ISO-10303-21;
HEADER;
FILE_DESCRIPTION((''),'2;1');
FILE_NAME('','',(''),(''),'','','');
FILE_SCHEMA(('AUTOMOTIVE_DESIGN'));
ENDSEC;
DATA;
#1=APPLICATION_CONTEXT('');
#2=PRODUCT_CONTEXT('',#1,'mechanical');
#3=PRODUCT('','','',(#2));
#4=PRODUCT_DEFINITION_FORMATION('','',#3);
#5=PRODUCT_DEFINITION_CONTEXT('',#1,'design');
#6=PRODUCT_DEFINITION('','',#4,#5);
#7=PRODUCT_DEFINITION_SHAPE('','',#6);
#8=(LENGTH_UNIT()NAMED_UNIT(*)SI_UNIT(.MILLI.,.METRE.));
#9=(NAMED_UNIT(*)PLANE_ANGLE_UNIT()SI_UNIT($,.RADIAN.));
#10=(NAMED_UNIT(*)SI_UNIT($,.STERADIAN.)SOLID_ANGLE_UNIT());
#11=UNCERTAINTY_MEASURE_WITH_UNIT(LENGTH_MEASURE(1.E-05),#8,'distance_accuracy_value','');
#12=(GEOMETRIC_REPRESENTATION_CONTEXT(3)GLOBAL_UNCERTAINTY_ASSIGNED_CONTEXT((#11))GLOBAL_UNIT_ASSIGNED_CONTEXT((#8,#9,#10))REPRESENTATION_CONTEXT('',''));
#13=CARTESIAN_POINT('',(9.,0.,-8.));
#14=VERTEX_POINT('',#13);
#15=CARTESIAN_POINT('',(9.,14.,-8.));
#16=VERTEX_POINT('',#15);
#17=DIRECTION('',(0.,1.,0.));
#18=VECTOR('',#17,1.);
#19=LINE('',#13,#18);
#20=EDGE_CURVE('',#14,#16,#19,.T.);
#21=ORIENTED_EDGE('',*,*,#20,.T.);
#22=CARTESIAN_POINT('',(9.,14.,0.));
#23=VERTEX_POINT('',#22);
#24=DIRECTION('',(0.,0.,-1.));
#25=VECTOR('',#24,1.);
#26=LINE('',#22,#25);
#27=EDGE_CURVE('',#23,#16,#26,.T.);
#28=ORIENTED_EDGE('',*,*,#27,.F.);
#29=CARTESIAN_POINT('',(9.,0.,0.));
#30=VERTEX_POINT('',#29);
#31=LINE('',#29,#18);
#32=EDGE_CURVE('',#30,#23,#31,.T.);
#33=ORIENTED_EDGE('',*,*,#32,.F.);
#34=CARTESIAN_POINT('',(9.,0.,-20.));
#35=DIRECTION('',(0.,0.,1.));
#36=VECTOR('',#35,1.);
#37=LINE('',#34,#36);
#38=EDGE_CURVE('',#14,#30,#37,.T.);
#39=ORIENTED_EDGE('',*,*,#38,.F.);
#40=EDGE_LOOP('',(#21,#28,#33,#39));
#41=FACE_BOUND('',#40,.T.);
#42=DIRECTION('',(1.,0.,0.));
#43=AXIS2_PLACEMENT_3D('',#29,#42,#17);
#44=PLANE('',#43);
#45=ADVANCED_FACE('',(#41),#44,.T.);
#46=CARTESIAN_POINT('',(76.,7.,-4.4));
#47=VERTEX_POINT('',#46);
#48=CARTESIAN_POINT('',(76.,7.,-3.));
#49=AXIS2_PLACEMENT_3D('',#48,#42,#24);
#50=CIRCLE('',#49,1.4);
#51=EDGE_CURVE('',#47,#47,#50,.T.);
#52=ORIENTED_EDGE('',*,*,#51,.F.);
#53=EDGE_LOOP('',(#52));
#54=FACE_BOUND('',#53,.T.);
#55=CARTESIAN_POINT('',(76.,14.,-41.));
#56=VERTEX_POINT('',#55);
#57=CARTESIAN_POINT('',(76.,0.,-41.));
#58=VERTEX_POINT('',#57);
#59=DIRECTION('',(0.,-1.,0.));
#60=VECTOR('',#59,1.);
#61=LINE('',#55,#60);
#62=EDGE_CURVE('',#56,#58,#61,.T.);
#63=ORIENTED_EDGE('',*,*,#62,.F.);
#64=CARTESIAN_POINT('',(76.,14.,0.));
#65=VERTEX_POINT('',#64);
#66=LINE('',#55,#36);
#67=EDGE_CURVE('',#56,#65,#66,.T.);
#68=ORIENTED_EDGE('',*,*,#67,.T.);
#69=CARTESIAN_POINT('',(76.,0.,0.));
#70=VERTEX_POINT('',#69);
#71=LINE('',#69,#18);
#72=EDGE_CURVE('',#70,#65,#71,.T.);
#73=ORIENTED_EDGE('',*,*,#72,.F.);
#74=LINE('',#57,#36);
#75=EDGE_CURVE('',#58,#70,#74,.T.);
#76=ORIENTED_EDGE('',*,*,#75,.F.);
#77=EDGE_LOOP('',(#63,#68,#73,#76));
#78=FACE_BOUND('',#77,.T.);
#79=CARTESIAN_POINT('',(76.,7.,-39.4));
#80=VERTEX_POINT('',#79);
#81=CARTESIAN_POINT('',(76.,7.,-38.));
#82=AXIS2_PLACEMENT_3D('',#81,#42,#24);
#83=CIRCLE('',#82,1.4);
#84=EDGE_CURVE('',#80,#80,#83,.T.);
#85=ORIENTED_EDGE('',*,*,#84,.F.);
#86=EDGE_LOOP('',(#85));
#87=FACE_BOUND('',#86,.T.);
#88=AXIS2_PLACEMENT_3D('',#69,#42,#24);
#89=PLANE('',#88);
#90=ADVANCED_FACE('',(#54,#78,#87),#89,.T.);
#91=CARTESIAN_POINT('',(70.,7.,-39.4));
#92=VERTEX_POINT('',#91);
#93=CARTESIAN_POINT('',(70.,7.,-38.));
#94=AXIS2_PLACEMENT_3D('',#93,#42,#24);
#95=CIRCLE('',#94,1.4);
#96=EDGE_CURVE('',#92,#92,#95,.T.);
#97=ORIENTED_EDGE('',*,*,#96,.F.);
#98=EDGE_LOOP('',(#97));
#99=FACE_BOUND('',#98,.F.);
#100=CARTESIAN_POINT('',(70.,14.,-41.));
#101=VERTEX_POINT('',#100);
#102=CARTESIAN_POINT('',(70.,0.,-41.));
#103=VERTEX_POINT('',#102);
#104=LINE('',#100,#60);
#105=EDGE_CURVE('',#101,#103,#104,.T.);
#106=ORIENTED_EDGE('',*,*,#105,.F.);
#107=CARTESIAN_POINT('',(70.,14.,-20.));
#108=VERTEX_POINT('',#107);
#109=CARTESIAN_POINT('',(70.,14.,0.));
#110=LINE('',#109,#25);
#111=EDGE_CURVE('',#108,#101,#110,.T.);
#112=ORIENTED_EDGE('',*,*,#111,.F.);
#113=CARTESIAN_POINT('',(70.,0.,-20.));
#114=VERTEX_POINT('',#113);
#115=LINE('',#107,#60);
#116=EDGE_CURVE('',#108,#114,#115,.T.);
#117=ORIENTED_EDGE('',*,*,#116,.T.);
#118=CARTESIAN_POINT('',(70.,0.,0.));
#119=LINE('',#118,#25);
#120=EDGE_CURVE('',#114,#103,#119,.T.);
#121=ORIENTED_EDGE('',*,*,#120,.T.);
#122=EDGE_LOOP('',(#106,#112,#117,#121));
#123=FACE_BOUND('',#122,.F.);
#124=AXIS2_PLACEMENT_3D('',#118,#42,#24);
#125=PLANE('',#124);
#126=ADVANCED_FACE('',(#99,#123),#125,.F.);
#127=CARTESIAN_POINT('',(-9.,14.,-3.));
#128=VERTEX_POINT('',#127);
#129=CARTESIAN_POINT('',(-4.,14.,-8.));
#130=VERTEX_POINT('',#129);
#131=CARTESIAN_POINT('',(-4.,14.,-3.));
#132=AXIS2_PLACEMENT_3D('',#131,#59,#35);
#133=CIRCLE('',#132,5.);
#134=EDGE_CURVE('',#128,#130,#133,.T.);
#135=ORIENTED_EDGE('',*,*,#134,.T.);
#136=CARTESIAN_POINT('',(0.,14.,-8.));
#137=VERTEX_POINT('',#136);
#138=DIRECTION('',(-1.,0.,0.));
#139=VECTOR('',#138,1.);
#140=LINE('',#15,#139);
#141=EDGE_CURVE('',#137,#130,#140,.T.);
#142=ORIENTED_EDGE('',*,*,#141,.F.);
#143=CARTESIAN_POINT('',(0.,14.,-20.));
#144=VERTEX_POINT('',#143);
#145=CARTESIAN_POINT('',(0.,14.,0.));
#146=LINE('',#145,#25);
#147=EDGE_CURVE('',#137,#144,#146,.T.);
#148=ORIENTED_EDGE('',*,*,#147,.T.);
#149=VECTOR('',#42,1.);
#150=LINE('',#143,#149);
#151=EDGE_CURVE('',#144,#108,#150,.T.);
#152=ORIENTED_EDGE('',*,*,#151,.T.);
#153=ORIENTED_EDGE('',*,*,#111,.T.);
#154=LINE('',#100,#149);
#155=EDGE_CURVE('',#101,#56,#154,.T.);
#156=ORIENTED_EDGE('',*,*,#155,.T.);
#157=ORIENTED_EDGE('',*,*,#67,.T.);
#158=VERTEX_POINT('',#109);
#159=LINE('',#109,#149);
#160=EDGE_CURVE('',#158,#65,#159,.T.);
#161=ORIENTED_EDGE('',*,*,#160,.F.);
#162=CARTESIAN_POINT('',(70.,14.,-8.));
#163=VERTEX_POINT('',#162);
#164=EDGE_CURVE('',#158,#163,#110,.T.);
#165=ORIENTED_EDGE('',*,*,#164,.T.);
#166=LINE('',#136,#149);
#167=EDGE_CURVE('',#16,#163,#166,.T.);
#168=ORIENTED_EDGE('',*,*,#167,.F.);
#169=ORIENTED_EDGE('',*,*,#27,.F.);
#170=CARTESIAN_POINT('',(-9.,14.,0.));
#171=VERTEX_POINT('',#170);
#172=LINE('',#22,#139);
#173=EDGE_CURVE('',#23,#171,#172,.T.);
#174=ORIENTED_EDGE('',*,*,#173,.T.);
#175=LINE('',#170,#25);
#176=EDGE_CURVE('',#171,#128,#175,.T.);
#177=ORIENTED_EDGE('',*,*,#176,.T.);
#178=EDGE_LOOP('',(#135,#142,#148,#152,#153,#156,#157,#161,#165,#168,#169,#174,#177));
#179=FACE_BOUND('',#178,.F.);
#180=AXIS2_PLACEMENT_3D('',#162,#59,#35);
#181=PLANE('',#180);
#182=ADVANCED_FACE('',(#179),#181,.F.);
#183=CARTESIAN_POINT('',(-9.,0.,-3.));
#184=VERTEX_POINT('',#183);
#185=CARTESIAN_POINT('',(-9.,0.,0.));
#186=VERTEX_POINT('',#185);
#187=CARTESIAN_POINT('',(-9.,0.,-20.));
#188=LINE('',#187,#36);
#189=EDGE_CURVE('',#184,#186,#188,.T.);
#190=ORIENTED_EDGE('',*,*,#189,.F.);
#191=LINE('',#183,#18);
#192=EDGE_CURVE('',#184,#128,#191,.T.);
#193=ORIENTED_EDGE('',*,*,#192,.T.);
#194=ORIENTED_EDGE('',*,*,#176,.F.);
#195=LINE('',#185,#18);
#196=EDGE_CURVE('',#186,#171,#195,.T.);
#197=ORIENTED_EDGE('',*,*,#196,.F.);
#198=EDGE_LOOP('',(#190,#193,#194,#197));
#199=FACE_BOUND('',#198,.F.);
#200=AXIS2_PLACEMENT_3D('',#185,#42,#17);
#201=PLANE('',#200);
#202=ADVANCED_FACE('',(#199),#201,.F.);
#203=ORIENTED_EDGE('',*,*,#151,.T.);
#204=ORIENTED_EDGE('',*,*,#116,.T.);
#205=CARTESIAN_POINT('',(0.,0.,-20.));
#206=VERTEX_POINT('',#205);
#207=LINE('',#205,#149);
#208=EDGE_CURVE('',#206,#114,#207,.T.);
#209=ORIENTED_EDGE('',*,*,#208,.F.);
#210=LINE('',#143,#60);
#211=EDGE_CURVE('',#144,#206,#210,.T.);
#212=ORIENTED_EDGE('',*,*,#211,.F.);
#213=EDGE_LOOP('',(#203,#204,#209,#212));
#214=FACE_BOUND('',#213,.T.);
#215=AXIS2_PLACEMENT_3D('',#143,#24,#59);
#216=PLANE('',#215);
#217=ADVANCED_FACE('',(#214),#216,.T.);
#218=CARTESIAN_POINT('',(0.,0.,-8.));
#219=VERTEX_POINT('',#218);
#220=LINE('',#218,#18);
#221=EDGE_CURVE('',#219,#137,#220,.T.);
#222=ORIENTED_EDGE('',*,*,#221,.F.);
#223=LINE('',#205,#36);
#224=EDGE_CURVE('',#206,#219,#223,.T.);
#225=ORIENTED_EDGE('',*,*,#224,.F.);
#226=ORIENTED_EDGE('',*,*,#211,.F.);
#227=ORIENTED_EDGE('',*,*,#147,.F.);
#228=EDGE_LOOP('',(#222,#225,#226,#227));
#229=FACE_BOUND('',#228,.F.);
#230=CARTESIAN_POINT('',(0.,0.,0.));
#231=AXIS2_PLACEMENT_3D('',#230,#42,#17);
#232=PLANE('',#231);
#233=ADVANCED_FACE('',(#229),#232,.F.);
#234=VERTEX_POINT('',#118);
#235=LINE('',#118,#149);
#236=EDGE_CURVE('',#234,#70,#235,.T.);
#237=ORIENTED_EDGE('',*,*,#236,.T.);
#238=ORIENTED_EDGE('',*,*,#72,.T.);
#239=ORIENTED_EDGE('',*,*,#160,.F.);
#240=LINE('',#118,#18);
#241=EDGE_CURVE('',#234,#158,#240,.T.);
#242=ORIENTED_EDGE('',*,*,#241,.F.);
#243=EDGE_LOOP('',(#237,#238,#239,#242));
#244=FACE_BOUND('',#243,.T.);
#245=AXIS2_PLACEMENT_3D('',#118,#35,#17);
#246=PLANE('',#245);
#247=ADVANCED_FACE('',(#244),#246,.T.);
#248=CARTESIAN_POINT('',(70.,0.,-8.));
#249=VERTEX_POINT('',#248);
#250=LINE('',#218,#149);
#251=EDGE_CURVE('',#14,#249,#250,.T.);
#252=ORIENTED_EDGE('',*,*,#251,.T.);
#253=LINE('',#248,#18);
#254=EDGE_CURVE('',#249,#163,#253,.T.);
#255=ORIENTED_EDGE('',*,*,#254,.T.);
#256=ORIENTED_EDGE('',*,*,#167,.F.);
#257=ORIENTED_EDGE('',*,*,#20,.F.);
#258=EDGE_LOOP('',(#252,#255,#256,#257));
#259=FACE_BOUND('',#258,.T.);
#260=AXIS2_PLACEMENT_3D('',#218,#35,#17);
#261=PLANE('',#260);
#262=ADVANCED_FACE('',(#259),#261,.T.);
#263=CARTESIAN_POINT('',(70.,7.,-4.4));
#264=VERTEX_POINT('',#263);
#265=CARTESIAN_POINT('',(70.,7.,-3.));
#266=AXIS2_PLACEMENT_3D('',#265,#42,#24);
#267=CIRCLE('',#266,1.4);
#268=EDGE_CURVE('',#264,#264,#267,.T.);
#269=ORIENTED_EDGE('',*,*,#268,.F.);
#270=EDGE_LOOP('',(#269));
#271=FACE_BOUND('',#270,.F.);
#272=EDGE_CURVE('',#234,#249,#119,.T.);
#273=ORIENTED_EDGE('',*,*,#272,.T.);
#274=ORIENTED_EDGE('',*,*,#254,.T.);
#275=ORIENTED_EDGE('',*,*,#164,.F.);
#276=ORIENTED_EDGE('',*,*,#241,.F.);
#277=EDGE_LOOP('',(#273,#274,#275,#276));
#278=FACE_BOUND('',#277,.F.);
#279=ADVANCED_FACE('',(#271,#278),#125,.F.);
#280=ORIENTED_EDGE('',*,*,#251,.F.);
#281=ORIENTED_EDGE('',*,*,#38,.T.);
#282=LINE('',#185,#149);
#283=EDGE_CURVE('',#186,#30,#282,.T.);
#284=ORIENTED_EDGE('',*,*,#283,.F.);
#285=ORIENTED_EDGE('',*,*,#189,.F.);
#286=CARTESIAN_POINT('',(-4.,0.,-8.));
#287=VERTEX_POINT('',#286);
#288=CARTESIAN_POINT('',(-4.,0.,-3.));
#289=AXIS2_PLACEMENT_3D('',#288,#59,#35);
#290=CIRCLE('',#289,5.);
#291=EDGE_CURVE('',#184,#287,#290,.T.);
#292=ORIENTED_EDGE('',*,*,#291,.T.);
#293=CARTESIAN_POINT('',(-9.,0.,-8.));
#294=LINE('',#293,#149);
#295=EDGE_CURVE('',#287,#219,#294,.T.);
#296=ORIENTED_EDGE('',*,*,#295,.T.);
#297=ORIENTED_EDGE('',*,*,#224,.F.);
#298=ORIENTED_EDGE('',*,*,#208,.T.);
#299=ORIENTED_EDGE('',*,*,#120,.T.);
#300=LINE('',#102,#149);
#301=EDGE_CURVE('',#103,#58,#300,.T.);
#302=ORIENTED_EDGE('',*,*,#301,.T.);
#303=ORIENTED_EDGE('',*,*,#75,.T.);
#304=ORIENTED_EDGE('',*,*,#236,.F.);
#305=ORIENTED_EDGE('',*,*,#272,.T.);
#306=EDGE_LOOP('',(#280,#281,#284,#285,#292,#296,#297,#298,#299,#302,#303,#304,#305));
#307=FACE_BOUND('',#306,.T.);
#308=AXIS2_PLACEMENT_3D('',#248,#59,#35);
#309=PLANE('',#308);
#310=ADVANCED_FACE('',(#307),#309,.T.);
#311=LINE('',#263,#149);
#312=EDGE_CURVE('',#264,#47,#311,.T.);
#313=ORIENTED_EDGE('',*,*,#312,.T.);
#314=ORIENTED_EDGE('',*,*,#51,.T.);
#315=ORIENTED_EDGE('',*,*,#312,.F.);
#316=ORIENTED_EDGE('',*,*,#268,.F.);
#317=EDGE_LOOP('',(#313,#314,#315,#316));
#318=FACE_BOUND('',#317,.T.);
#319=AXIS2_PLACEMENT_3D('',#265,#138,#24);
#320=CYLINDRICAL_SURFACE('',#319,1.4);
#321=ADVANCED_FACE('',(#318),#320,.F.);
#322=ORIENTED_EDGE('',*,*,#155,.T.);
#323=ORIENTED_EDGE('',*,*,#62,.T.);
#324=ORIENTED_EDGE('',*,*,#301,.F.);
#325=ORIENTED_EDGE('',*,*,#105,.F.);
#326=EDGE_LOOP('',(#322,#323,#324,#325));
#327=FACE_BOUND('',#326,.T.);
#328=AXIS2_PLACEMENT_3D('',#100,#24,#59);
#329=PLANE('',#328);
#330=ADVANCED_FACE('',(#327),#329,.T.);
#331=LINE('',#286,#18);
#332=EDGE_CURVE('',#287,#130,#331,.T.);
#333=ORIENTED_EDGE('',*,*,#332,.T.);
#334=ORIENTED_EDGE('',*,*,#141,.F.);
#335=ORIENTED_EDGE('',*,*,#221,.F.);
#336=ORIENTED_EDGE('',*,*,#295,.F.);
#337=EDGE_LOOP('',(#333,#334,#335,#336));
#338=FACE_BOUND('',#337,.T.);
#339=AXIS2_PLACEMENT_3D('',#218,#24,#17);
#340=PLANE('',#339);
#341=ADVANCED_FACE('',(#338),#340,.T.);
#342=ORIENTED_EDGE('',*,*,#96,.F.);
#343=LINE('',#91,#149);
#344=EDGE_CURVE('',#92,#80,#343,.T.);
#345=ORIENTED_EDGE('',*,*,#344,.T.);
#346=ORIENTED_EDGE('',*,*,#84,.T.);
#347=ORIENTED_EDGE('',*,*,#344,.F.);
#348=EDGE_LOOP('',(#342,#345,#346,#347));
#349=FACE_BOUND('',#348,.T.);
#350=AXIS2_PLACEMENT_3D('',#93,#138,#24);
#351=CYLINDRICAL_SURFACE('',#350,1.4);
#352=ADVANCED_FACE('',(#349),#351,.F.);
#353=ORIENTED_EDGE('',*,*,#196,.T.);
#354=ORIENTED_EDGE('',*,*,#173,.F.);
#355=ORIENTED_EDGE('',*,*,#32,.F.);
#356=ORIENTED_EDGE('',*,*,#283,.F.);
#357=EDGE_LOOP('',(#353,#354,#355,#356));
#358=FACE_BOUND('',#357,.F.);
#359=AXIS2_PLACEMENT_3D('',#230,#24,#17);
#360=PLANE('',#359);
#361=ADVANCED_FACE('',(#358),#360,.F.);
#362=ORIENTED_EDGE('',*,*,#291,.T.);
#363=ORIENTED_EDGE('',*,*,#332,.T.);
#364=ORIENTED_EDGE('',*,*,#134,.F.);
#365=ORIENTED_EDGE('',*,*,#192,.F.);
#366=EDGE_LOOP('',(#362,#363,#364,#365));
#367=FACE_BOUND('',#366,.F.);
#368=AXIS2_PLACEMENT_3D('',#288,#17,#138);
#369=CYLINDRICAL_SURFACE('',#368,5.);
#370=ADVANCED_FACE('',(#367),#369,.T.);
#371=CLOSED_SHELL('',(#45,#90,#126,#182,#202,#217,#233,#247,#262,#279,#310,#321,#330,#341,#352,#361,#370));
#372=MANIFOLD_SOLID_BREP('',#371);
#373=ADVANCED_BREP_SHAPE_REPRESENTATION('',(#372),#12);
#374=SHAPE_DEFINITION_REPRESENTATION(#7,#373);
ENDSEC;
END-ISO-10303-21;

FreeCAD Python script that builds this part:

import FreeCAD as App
import Part
import Sketcher

V = App.Vector
Q = App.Units.Quantity


def edges_at(feature, points):
    """Names of the edges that pass closest to the given points."""
    edges = feature.Shape.Edges
    near = lambda p: min(range(len(edges)), key=lambda i: edges[i].distToShape(Part.Vertex(*p))[0])
    return sorted({f"Edge{near(p) + 1}" for p in points})

doc = App.newDocument("Part")
body = doc.addObject("PartDesign::Body", "Body")

sketch1 = body.newObject("Sketcher::SketchObject", "Sketch")
sketch1.AttachmentSupport = (doc.getObject("YZ_Plane"), [""])
sketch1.MapMode = "FlatFace"
sketch1.addGeometry(Part.LineSegment(V(14, -8, 0), V(0, -8, 0)), False)
sketch1.addGeometry(Part.LineSegment(V(0, -8, 0), V(0, -20, 0)), False)
sketch1.addGeometry(Part.LineSegment(V(0, -20, 0), V(14, -20, 0)), False)
sketch1.addGeometry(Part.LineSegment(V(14, -20, 0), V(14, -8, 0)), False)
sketch1.addConstraint(Sketcher.Constraint("Coincident", 0, 2, 1, 1))
sketch1.addConstraint(Sketcher.Constraint("Coincident", 1, 2, 2, 1))
sketch1.addConstraint(Sketcher.Constraint("Coincident", 2, 2, 3, 1))
sketch1.addConstraint(Sketcher.Constraint("Coincident", 3, 2, 0, 1))
sketch1.addConstraint(Sketcher.Constraint("Horizontal", 0))
sketch1.addConstraint(Sketcher.Constraint("Vertical", 1))
sketch1.addConstraint(Sketcher.Constraint("Horizontal", 2))
sketch1.addConstraint(Sketcher.Constraint("Vertical", 3))
sketch1.addConstraint(Sketcher.Constraint("PointOnObject", 0, 2, -2))
sketch1.addConstraint(Sketcher.Constraint("DistanceX", 0, 2, 0, 1, Q("14 mm")))
sketch1.addConstraint(Sketcher.Constraint("DistanceY", 1, 2, 1, 1, Q("12 mm")))
sketch1.addConstraint(Sketcher.Constraint("DistanceY", 1, 2, -1, 1, Q("20 mm")))
pad1 = body.newObject("PartDesign::Pad", "Pad")
pad1.Profile = sketch1
pad1.Length = 70

sketch2 = body.newObject("Sketcher::SketchObject", "Sketch001")
sketch2.AttachmentSupport = (doc.getObject("YZ_Plane"), [""])
sketch2.MapMode = "FlatFace"
sketch2.addGeometry(Part.LineSegment(V(14, 0, 0), V(0, 0, 0)), False)
sketch2.addGeometry(Part.LineSegment(V(0, 0, 0), V(0, -8, 0)), False)
sketch2.addGeometry(Part.LineSegment(V(0, -8, 0), V(14, -8, 0)), False)
sketch2.addGeometry(Part.LineSegment(V(14, -8, 0), V(14, 0, 0)), False)
sketch2.addConstraint(Sketcher.Constraint("Coincident", 0, 2, 1, 1))
sketch2.addConstraint(Sketcher.Constraint("Coincident", 1, 2, 2, 1))
sketch2.addConstraint(Sketcher.Constraint("Coincident", 2, 2, 3, 1))
sketch2.addConstraint(Sketcher.Constraint("Coincident", 3, 2, 0, 1))
sketch2.addConstraint(Sketcher.Constraint("Horizontal", 0))
sketch2.addConstraint(Sketcher.Constraint("Vertical", 1))
sketch2.addConstraint(Sketcher.Constraint("Horizontal", 2))
sketch2.addConstraint(Sketcher.Constraint("Vertical", 3))
sketch2.addConstraint(Sketcher.Constraint("Coincident", 0, 2, -1, 1))
sketch2.addConstraint(Sketcher.Constraint("DistanceX", 0, 2, 0, 1, Q("14 mm")))
sketch2.addConstraint(Sketcher.Constraint("DistanceY", 1, 2, 1, 1, Q("8 mm")))
pad2 = body.newObject("PartDesign::Pad", "Pad001")
pad2.Profile = sketch2
pad2.Length = 18
pad2.Midplane = True
doc.recompute()

fillet = body.newObject("PartDesign::Fillet", "Fillet")
fillet.Base = (pad2, edges_at(pad2, [(-9, 7, -8)]))
fillet.Radius = 5

sketch3 = body.newObject("Sketcher::SketchObject", "Sketch002")
sketch3.AttachmentSupport = (doc.getObject("YZ_Plane"), [""])
sketch3.MapMode = "FlatFace"
sketch3.AttachmentOffset = App.Placement(V(0, 0, 70), App.Rotation())
sketch3.addGeometry(Part.LineSegment(V(0, 0, 0), V(0, -41, 0)), False)
sketch3.addGeometry(Part.LineSegment(V(0, -41, 0), V(14, -41, 0)), False)
sketch3.addGeometry(Part.LineSegment(V(14, -41, 0), V(14, 0, 0)), False)
sketch3.addGeometry(Part.LineSegment(V(14, 0, 0), V(0, 0, 0)), False)
sketch3.addGeometry(Part.Circle(V(7, -3, 0), V(0, 0, 1), 1.4), False)
sketch3.addGeometry(Part.Circle(V(7, -38, 0), V(0, 0, 1), 1.4), False)
sketch3.addConstraint(Sketcher.Constraint("Coincident", 0, 2, 1, 1))
sketch3.addConstraint(Sketcher.Constraint("Coincident", 1, 2, 2, 1))
sketch3.addConstraint(Sketcher.Constraint("Coincident", 2, 2, 3, 1))
sketch3.addConstraint(Sketcher.Constraint("Coincident", 3, 2, 0, 1))
sketch3.addConstraint(Sketcher.Constraint("Vertical", 0))
sketch3.addConstraint(Sketcher.Constraint("Horizontal", 1))
sketch3.addConstraint(Sketcher.Constraint("Vertical", 2))
sketch3.addConstraint(Sketcher.Constraint("Horizontal", 3))
sketch3.addConstraint(Sketcher.Constraint("Coincident", 3, 2, -1, 1))
sketch3.addConstraint(Sketcher.Constraint("Equal", 4, 5))
sketch3.addConstraint(Sketcher.Constraint("Vertical", 4, 3, 5, 3))
sketch3.addConstraint(Sketcher.Constraint("Diameter", 4, Q("2.8 mm")))
sketch3.addConstraint(Sketcher.Constraint("DistanceY", 0, 2, 0, 1, Q("41 mm")))
sketch3.addConstraint(Sketcher.Constraint("DistanceY", 4, 3, -1, 1, Q("3 mm")))
sketch3.addConstraint(Sketcher.Constraint("DistanceY", 5, 3, 4, 3, Q("35 mm")))
sketch3.addConstraint(Sketcher.Constraint("DistanceX", 1, 1, 1, 2, Q("14 mm")))
sketch3.addConstraint(Sketcher.Constraint("DistanceX", -1, 1, 4, 3, Q("7 mm")))
pad3 = body.newObject("PartDesign::Pad", "Pad002")
pad3.Profile = sketch3
pad3.Length = 6

doc.recompute()
